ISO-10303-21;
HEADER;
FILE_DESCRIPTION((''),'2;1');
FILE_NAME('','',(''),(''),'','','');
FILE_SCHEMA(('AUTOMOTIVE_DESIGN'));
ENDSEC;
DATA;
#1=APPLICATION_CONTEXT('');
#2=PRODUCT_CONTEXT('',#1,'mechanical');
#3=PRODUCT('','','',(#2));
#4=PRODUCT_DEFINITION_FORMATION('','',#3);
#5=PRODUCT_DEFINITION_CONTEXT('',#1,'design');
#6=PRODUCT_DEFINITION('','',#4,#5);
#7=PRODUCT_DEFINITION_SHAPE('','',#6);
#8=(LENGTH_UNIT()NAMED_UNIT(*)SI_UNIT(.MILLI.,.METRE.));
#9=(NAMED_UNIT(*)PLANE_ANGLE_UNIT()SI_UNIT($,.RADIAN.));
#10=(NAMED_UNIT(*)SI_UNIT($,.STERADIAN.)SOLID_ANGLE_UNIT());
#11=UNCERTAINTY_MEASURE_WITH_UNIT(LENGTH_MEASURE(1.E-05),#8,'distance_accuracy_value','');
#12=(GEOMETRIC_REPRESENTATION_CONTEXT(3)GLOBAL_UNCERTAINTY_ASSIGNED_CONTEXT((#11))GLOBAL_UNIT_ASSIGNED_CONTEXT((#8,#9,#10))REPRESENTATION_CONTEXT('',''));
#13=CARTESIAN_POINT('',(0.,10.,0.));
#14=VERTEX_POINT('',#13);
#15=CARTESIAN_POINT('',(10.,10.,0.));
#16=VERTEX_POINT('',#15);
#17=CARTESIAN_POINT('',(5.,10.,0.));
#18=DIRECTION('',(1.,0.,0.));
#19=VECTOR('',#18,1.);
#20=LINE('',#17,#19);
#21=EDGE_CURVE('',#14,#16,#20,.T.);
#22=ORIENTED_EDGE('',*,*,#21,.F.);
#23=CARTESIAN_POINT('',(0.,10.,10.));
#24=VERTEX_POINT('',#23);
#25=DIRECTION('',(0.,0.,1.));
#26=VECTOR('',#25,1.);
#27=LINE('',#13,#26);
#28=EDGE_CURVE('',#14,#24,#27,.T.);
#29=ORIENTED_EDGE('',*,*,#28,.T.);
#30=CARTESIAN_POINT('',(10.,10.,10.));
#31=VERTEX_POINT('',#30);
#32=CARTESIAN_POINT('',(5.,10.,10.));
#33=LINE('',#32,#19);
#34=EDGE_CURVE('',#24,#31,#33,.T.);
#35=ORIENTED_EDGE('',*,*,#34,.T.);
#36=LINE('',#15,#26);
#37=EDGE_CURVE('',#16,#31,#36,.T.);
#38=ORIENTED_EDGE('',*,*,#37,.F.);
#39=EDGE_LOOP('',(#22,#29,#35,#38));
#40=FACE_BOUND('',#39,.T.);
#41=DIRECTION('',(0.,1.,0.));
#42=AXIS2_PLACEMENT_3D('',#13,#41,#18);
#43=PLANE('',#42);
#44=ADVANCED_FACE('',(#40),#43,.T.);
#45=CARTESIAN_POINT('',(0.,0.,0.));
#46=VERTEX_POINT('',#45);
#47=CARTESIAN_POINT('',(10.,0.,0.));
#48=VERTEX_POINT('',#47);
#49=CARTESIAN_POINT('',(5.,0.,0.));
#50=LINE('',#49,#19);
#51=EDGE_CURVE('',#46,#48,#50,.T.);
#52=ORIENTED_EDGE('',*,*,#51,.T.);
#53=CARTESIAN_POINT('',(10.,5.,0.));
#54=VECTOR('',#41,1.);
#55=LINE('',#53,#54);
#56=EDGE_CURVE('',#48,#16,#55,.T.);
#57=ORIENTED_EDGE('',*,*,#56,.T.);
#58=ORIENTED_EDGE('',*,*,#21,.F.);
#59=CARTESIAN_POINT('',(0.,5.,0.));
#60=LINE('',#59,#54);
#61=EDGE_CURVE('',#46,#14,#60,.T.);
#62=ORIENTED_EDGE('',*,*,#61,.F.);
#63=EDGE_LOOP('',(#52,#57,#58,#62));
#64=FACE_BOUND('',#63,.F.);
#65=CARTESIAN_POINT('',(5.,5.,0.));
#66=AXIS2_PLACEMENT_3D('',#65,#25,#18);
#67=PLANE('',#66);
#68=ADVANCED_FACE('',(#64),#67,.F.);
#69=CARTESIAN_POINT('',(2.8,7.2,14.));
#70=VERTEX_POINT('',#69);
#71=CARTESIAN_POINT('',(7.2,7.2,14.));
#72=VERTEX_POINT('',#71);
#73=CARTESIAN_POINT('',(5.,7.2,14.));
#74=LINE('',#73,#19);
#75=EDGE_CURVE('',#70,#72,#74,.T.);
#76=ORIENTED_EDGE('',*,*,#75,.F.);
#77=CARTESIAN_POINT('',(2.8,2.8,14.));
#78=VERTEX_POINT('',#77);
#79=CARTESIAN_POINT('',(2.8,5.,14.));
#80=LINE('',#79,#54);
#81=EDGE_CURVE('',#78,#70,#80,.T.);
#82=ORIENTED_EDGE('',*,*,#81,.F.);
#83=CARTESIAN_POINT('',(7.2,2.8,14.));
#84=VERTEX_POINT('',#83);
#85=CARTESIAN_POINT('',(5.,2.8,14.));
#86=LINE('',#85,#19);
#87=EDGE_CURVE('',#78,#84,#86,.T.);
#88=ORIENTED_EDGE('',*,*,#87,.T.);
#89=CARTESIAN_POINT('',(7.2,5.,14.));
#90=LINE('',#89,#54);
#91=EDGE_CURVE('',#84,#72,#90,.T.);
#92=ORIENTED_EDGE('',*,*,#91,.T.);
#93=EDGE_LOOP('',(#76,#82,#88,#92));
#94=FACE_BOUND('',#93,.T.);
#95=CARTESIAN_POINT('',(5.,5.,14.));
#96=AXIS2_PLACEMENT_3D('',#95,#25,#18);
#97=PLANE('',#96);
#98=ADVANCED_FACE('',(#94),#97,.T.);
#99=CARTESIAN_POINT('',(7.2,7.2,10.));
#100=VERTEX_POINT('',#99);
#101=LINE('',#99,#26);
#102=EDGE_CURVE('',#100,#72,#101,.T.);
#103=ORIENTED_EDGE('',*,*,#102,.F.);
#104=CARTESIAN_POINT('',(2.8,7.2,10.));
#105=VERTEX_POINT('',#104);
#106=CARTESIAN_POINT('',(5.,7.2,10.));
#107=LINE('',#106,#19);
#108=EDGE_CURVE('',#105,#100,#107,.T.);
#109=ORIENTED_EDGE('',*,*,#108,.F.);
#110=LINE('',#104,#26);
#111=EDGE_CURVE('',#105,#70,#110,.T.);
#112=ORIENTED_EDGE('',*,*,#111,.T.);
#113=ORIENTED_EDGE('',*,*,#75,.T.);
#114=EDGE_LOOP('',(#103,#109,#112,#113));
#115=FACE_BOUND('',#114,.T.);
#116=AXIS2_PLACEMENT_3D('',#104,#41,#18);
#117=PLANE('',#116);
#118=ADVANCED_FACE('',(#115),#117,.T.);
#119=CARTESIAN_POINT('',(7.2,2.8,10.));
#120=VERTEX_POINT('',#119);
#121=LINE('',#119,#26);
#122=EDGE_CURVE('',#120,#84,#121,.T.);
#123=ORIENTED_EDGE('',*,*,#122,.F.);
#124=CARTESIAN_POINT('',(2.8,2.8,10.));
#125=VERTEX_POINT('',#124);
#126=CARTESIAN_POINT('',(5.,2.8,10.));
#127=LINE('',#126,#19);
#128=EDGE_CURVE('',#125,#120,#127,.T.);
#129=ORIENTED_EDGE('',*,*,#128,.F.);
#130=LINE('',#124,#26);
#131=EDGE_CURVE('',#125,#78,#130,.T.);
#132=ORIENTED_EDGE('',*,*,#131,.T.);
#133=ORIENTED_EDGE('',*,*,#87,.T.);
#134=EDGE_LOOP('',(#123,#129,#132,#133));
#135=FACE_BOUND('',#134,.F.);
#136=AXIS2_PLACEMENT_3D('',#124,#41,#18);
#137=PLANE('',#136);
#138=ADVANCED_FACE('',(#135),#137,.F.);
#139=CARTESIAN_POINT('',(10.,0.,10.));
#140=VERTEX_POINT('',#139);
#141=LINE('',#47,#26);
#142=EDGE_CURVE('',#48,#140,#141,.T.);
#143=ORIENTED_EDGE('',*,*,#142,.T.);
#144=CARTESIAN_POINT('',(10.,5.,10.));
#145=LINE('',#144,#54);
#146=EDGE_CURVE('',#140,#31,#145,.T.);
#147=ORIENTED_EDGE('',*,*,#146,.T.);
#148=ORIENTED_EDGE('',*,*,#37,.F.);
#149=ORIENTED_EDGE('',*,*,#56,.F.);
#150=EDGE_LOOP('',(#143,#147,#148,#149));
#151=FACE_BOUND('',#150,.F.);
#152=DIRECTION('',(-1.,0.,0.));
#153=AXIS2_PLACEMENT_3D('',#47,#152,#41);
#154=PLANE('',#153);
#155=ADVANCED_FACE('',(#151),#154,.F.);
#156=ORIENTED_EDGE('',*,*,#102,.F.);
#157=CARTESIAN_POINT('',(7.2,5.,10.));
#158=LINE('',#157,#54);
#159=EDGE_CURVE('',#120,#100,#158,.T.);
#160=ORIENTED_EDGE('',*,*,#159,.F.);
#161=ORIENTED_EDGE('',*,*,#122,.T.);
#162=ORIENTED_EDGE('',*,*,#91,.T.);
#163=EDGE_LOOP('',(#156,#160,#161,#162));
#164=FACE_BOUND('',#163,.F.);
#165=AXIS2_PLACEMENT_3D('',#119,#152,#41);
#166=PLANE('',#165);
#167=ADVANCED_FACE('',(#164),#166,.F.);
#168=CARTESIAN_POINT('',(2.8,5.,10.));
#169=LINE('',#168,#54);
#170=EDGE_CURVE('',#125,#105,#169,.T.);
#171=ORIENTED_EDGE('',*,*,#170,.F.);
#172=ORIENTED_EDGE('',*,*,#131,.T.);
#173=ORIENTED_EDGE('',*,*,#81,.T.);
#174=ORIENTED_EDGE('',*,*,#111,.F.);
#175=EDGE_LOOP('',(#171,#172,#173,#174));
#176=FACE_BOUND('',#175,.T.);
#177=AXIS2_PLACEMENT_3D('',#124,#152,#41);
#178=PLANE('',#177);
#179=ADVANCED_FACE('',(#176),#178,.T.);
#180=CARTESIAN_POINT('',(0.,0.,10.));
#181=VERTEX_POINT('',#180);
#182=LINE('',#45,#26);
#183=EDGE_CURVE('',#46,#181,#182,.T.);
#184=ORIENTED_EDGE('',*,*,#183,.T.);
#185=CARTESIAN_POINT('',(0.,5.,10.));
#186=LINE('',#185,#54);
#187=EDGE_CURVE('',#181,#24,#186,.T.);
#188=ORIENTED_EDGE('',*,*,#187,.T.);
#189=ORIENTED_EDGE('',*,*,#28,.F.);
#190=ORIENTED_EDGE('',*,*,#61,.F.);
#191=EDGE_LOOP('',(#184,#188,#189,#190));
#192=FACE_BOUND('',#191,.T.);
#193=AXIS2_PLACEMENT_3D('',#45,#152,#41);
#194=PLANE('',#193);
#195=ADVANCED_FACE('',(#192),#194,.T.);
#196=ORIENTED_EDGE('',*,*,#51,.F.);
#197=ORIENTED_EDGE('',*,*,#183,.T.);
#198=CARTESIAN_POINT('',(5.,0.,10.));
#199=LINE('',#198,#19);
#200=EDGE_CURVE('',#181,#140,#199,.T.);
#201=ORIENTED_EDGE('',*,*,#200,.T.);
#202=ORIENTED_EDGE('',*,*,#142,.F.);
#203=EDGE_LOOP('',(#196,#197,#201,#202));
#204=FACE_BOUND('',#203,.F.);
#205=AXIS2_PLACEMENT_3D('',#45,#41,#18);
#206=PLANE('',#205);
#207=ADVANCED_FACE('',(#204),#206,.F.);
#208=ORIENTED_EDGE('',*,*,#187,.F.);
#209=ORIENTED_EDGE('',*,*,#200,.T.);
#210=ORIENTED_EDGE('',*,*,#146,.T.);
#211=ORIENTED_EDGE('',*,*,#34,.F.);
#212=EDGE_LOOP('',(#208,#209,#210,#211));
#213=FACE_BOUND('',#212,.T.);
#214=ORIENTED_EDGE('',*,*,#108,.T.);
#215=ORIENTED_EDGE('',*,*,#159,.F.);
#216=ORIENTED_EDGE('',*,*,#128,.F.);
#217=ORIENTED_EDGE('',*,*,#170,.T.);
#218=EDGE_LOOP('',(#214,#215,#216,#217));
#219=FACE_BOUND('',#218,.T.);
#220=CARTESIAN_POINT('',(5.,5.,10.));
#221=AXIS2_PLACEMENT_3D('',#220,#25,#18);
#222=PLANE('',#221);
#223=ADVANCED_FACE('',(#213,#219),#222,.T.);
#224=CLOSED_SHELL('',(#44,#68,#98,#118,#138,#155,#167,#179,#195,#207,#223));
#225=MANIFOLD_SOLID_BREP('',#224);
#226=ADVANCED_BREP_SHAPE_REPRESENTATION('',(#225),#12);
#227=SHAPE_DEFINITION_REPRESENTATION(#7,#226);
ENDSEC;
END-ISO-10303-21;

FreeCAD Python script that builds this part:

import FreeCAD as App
import Part
import Sketcher

doc = App.newDocument("Part")
body = doc.addObject("PartDesign::Body", "Body")

# Sketch on XY plane
sketch1 = body.newObject("Sketcher::SketchObject", "Sketch")
sketch1.AttachmentSupport = (doc.getObject("XY_Plane"), [""])
sketch1.MapMode = "FlatFace"
sketch1.addGeometry(Part.LineSegment(App.Vector(0, 10, 0), App.Vector(0, 0, 0)), False)
sketch1.addGeometry(Part.LineSegment(App.Vector(0, 0, 0), App.Vector(10, 0, 0)), False)
sketch1.addGeometry(Part.LineSegment(App.Vector(10, 0, 0), App.Vector(10, 10, 0)), False)
sketch1.addGeometry(Part.LineSegment(App.Vector(10, 10, 0), App.Vector(0, 10, 0)), False)
sketch1.addConstraint(Sketcher.Constraint("Coincident", 0, 2, 1, 1))
sketch1.addConstraint(Sketcher.Constraint("Coincident", 1, 2, 2, 1))
sketch1.addConstraint(Sketcher.Constraint("Coincident", 2, 2, 3, 1))
sketch1.addConstraint(Sketcher.Constraint("Coincident", 3, 2, 0, 1))
sketch1.addConstraint(Sketcher.Constraint("Vertical", 0))
sketch1.addConstraint(Sketcher.Constraint("Horizontal", 1))
sketch1.addConstraint(Sketcher.Constraint("Vertical", 2))
sketch1.addConstraint(Sketcher.Constraint("Horizontal", 3))
sketch1.addConstraint(Sketcher.Constraint("Coincident", 0, 2, -1, 1))
sketch1.addConstraint(Sketcher.Constraint("Equal", 3, 0))
sketch1.addConstraint(Sketcher.Constraint("DistanceX", 1, 1, 1, 2, 10.0))
pad1 = body.newObject("PartDesign::Pad", "Pad")
pad1.Profile = sketch1
pad1.Length = 10

# Sketch on XY plane
sketch2 = body.newObject("Sketcher::SketchObject", "Sketch001")
sketch2.AttachmentSupport = (doc.getObject("XY_Plane"), [""])
sketch2.MapMode = "FlatFace"
sketch2.AttachmentOffset = App.Placement(App.Vector(0, 0, 10), App.Rotation())
sketch2.addGeometry(Part.LineSegment(App.Vector(2.8, 7.2, 0), App.Vector(2.8, 2.8, 0)), False)
sketch2.addGeometry(Part.LineSegment(App.Vector(2.8, 2.8, 0), App.Vector(7.2, 2.8, 0)), False)
sketch2.addGeometry(Part.LineSegment(App.Vector(7.2, 2.8, 0), App.Vector(7.2, 7.2, 0)), False)
sketch2.addGeometry(Part.LineSegment(App.Vector(7.2, 7.2, 0), App.Vector(2.8, 7.2, 0)), False)
sketch2.addConstraint(Sketcher.Constraint("Coincident", 0, 2, 1, 1))
sketch2.addConstraint(Sketcher.Constraint("Coincident", 1, 2, 2, 1))
sketch2.addConstraint(Sketcher.Constraint("Coincident", 2, 2, 3, 1))
sketch2.addConstraint(Sketcher.Constraint("Coincident", 3, 2, 0, 1))
sketch2.addConstraint(Sketcher.Constraint("Vertical", 0))
sketch2.addConstraint(Sketcher.Constraint("Horizontal", 1))
sketch2.addConstraint(Sketcher.Constraint("Vertical", 2))
sketch2.addConstraint(Sketcher.Constraint("Horizontal", 3))
sketch2.addConstraint(Sketcher.Constraint("Equal", 3, 0))
sketch2.addConstraint(Sketcher.Constraint("DistanceX", 1, 1, 1, 2, 4.4))
sketch2.addConstraint(Sketcher.Constraint("DistanceX", -1, 1, 0, 2, 2.8))
sketch2.addConstraint(Sketcher.Constraint("DistanceY", -1, 1, 0, 2, 2.8))
pad2 = body.newObject("PartDesign::Pad", "Pad001")
pad2.Profile = sketch2
pad2.Length = 4

doc.recompute()
